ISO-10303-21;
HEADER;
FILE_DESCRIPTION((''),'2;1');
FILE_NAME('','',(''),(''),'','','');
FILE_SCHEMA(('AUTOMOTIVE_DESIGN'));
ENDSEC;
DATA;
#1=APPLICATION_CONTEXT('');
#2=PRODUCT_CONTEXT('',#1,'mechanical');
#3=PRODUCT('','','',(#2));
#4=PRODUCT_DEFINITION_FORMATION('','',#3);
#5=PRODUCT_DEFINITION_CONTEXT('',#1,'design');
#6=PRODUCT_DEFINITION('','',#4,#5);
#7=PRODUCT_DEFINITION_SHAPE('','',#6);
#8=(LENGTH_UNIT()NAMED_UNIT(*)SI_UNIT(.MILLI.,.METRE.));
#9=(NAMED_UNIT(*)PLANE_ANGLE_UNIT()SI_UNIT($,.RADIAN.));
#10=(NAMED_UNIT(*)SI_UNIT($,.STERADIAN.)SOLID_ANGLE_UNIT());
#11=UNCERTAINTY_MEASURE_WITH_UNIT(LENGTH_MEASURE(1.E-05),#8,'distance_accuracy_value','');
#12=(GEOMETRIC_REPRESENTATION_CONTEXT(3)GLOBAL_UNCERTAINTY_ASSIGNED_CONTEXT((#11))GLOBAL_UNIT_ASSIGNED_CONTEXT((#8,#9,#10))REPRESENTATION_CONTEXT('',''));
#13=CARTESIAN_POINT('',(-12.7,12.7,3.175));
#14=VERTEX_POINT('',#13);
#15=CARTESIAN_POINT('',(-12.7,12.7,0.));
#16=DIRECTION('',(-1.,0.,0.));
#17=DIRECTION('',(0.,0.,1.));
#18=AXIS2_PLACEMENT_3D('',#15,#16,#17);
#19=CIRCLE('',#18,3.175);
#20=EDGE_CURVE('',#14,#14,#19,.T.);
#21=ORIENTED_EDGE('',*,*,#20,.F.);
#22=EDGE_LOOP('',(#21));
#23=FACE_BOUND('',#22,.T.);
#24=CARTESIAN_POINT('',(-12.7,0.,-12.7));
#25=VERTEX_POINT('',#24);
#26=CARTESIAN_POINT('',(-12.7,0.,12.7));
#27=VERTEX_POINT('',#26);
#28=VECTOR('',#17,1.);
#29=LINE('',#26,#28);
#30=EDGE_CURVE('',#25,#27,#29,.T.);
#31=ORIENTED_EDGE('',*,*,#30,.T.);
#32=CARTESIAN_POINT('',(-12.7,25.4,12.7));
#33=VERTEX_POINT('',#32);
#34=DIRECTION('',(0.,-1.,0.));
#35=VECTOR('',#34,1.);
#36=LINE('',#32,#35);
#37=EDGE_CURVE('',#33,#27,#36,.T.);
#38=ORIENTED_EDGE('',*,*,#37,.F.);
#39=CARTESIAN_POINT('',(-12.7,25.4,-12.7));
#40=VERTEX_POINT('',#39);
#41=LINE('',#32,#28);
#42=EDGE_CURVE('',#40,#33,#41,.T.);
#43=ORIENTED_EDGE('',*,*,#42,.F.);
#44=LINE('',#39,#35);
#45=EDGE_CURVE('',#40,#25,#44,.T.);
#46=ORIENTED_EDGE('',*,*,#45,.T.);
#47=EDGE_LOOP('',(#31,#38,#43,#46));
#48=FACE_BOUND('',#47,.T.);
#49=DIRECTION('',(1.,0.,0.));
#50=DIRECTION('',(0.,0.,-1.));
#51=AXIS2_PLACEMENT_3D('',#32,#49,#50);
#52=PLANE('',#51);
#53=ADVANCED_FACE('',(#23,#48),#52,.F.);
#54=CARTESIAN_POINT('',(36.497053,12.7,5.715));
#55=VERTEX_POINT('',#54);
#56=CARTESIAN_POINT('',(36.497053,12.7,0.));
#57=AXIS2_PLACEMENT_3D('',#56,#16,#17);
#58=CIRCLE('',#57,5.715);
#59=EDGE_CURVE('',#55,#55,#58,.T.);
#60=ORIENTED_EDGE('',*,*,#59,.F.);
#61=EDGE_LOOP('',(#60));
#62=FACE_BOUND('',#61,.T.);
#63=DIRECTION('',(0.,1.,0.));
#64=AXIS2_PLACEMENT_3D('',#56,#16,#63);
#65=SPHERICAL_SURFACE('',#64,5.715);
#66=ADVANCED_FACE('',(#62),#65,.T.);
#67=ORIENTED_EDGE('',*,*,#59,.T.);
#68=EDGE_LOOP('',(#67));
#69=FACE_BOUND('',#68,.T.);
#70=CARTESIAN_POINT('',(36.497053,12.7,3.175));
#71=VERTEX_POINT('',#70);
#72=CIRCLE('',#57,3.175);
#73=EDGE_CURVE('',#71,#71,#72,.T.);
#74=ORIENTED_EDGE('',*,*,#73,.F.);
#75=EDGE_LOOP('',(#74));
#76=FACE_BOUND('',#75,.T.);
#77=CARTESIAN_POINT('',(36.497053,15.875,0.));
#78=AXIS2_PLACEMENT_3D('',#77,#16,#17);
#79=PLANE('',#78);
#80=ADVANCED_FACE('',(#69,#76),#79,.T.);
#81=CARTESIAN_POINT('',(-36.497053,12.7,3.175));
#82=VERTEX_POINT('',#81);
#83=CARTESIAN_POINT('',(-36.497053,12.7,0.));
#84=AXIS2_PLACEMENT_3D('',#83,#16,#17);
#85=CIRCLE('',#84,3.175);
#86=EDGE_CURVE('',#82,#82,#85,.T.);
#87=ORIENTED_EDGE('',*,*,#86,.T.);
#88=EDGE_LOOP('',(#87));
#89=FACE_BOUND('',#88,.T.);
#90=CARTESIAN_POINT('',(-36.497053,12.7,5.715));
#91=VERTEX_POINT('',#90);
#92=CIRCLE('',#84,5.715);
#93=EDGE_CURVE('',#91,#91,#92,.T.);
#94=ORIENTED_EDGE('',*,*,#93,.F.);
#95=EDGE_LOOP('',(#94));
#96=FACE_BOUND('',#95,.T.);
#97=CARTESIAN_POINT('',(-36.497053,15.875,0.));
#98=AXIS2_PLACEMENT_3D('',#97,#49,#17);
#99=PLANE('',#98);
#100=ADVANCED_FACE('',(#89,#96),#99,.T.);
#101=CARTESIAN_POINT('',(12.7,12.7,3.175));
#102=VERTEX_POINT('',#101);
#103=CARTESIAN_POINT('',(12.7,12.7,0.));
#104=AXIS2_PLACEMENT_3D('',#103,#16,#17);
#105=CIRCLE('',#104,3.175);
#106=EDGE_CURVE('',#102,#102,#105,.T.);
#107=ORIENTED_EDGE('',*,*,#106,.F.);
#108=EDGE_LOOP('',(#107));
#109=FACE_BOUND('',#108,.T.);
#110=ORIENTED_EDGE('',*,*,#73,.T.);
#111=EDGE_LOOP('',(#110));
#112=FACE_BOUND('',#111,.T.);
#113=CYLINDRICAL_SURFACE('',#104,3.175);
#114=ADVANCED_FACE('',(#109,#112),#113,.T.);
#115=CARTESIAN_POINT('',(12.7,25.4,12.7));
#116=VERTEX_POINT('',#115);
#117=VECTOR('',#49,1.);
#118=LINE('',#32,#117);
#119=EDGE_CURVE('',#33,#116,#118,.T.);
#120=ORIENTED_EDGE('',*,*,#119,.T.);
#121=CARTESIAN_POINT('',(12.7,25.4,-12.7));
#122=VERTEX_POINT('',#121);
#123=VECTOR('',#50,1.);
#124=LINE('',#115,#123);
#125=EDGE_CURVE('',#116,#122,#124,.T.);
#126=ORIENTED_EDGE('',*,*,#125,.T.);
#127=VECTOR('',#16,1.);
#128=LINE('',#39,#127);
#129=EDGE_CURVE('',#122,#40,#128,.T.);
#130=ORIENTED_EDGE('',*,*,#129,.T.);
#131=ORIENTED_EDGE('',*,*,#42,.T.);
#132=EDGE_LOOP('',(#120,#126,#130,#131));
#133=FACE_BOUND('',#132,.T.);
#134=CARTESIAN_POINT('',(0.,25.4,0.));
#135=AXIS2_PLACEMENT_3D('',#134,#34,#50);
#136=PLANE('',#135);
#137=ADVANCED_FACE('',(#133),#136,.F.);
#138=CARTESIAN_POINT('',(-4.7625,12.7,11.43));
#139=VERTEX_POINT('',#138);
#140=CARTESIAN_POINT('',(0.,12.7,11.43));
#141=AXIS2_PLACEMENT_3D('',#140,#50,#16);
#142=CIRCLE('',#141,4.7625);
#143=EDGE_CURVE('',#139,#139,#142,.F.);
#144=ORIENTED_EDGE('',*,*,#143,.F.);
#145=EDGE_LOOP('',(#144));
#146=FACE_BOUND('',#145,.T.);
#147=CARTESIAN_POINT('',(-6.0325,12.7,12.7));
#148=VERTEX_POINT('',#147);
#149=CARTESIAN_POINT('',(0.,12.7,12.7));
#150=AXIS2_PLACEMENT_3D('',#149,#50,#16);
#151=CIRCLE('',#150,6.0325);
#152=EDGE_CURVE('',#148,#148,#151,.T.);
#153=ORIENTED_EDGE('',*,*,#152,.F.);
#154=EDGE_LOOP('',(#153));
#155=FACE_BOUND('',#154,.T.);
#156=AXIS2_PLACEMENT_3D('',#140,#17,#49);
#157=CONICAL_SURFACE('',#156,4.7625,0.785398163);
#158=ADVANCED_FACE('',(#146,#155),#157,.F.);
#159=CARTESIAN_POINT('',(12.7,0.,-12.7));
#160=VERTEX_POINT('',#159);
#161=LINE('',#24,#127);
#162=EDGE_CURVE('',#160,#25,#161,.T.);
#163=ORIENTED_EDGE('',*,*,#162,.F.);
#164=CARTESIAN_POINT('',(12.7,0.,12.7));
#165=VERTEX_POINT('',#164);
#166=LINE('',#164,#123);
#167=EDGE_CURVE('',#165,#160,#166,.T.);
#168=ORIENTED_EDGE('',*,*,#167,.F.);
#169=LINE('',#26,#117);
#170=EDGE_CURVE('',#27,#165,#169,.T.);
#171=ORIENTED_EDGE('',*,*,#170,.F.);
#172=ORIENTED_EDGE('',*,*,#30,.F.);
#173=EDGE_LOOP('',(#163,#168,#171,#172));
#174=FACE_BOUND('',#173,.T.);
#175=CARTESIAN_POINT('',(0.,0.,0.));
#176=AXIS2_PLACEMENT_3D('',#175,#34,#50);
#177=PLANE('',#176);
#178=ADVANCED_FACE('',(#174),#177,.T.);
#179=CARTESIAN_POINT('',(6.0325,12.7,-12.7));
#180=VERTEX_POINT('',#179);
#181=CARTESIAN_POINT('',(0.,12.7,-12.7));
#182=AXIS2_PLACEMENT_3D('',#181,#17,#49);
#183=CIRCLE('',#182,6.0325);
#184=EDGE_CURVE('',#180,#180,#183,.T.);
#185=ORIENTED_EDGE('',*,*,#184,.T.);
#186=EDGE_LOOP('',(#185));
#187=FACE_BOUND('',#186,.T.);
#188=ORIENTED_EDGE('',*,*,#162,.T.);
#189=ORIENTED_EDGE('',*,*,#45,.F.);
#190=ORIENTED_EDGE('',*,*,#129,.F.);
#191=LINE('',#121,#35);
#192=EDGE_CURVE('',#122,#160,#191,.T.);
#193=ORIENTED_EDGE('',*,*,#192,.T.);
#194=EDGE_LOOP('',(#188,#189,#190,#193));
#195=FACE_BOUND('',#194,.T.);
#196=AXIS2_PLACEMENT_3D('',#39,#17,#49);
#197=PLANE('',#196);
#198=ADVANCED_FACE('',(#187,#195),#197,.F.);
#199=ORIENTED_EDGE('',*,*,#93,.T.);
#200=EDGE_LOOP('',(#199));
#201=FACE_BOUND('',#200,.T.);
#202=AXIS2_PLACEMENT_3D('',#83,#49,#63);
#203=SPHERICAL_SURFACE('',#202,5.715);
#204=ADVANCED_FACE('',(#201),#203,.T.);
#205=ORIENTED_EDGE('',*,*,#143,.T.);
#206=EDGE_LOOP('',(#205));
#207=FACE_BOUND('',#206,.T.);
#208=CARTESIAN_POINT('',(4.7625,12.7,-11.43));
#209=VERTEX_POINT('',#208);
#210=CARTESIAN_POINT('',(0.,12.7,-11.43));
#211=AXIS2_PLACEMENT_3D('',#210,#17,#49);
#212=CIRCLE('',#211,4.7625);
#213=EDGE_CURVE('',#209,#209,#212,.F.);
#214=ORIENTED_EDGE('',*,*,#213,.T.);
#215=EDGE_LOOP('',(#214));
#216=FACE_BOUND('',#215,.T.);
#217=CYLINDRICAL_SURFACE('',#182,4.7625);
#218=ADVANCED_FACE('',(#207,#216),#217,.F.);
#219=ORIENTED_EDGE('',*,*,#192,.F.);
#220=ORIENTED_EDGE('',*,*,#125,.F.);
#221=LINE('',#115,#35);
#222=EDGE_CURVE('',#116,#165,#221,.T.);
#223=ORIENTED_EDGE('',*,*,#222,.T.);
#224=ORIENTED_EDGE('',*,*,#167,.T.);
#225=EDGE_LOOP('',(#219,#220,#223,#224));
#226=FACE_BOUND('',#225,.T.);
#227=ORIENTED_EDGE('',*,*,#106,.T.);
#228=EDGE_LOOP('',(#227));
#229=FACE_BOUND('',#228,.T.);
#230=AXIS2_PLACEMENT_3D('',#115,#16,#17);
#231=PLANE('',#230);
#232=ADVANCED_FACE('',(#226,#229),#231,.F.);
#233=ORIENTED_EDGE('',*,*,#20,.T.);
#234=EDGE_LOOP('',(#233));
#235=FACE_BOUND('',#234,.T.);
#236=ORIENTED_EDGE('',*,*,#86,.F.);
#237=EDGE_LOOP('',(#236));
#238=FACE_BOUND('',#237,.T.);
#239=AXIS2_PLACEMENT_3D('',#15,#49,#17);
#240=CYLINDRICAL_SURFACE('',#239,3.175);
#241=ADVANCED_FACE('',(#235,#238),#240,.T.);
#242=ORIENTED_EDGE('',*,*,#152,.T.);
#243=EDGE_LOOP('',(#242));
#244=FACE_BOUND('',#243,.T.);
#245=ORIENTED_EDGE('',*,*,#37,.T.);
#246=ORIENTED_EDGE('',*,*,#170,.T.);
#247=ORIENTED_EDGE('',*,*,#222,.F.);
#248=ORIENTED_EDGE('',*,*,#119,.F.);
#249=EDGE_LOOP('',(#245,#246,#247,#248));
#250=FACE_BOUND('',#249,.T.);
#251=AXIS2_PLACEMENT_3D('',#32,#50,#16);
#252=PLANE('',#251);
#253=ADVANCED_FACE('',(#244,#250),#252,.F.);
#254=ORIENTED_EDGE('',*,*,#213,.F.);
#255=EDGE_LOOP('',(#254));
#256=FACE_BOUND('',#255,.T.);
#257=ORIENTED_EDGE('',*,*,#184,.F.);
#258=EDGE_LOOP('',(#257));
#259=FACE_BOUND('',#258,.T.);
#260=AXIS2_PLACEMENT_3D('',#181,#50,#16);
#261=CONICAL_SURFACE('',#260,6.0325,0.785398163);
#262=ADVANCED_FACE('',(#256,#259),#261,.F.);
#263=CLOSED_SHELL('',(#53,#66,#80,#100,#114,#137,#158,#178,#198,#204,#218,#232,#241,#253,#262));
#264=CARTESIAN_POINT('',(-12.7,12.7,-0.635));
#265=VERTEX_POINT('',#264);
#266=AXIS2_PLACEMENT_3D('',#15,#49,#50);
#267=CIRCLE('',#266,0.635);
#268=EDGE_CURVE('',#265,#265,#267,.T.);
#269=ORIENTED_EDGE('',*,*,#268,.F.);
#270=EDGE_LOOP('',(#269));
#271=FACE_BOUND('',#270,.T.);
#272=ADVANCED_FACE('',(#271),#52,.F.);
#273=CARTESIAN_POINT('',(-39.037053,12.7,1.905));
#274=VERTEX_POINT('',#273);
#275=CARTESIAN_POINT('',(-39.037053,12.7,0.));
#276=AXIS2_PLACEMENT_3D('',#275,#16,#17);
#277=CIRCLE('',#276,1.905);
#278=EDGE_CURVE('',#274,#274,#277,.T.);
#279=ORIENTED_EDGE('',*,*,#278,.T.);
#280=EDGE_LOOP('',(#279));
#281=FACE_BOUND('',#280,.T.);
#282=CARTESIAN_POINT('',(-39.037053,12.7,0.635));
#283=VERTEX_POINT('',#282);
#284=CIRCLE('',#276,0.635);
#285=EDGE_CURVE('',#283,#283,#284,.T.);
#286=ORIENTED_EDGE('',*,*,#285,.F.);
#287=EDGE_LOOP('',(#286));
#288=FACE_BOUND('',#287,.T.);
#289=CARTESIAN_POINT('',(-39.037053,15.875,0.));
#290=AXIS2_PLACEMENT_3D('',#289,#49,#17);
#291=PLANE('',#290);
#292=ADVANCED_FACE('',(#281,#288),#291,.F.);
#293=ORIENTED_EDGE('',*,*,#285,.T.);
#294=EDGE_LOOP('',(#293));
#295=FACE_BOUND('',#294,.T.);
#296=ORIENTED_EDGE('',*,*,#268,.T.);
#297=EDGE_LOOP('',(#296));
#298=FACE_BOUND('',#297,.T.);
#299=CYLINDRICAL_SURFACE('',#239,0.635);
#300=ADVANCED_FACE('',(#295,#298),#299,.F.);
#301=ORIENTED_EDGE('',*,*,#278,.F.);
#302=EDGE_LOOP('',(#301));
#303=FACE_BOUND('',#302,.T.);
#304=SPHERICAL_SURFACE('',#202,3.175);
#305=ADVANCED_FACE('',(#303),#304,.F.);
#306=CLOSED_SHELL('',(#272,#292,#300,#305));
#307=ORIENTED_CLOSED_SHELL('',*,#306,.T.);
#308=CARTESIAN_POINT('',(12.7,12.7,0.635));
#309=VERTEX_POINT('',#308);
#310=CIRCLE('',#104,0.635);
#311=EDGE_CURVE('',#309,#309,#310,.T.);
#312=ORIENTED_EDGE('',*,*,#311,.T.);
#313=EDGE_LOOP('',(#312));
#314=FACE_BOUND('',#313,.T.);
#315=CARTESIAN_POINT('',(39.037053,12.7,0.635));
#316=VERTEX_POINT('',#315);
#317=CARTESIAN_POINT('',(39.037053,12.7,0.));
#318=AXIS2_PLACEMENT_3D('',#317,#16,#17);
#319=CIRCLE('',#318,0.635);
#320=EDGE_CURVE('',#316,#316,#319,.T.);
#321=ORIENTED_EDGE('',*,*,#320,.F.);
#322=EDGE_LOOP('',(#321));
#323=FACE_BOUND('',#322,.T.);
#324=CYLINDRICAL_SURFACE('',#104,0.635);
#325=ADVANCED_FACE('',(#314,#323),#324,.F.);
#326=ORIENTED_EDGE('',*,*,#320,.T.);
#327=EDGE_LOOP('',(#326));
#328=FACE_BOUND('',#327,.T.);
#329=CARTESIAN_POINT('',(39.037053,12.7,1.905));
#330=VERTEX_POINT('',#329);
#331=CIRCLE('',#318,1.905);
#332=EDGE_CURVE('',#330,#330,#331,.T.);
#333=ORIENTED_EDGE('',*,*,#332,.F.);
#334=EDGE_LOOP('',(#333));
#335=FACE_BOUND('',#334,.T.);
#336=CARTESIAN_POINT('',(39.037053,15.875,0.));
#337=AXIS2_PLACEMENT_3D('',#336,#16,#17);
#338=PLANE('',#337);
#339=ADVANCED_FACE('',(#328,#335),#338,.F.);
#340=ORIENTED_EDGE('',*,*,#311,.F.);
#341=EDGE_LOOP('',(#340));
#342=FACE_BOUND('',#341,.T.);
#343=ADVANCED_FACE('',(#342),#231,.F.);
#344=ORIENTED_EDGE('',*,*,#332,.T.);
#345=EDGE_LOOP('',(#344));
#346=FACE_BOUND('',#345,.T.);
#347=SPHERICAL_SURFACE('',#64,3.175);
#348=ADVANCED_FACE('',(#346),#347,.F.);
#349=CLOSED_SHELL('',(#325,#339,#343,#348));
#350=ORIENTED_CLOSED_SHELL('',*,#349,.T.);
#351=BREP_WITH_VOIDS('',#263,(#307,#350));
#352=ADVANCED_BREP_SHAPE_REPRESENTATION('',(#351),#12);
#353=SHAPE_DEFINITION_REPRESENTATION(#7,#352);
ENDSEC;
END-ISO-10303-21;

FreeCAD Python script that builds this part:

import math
import FreeCAD as App
import Part
import Sketcher
from FreeCAD import Vector
Q = App.Units.Quantity


def edges_at(feature, points):
    """Names of the edges that pass closest to the given points."""
    edges = feature.Shape.Edges
    near = lambda p: min(range(len(edges)), key=lambda i: edges[i].distToShape(Part.Vertex(*p))[0])
    return sorted({f"Edge{near(p) + 1}" for p in points})

doc = App.newDocument("Part")
body = doc.addObject("PartDesign::Body", "Body")

# Sketch on XZ plane
sketch1 = doc.addObject("Sketcher::SketchObject", "Sketch")
body.addObject(sketch1)
sketch1.AttachmentSupport = (doc.XZ_Plane, [""])
sketch1.MapMode = "FlatFace"
sketch1.addGeometry(Part.LineSegment(Vector(-12.7, -12.7, 0), Vector(-12.7, 12.7, 0)), False)
sketch1.addGeometry(Part.LineSegment(Vector(-12.7, 12.7, 0), Vector(12.7, 12.7, 0)), False)
sketch1.addGeometry(Part.LineSegment(Vector(12.7, 12.7, 0), Vector(12.7, -12.7, 0)), False)
sketch1.addGeometry(Part.LineSegment(Vector(12.7, -12.7, 0), Vector(-12.7, -12.7, 0)), False)
sketch1.addConstraint(Sketcher.Constraint("Coincident", 0, 2, 1, 1))
sketch1.addConstraint(Sketcher.Constraint("Coincident", 1, 2, 2, 1))
sketch1.addConstraint(Sketcher.Constraint("Coincident", 2, 2, 3, 1))
sketch1.addConstraint(Sketcher.Constraint("Coincident", 3, 2, 0, 1))
sketch1.addConstraint(Sketcher.Constraint("Vertical", 0))
sketch1.addConstraint(Sketcher.Constraint("Horizontal", 1))
sketch1.addConstraint(Sketcher.Constraint("Vertical", 2))
sketch1.addConstraint(Sketcher.Constraint("Horizontal", 3))
sketch1.addConstraint(Sketcher.Constraint("Symmetric", 0, 2, 2, 2, -1, 1))
sketch1.addConstraint(Sketcher.Constraint("Equal", 3, 0))
sketch1.addConstraint(Sketcher.Constraint("DistanceX", 1, 1, 1, 2, Q("1 in")))
pad1 = doc.addObject("PartDesign::Pad", "Pad")
body.addObject(pad1)
pad1.Profile = sketch1
pad1.Length = Q("1 in")
pad1.Reversed = True

# Sketch on XY plane
sketch2 = doc.addObject("Sketcher::SketchObject", "Sketch001")
body.addObject(sketch2)
sketch2.AttachmentSupport = (doc.XY_Plane, [""])
sketch2.MapMode = "FlatFace"
sketch2.AttachmentOffset = App.Placement(Vector(0, 0, 0.5 * 25.4), App.Rotation())
sketch2.addGeometry(Part.Circle(Vector(0, 12.7, 0), Vector(0, 0, 1), 4.7625), False)
sketch2.addConstraint(Sketcher.Constraint("PointOnObject", 0, 3, -2))
sketch2.addConstraint(Sketcher.Constraint("Diameter", 0, Q("0.375 in")))
sketch2.addConstraint(Sketcher.Constraint("DistanceY", -1, 1, 0, 3, Q("0.5 in")))
pocket1 = doc.addObject("PartDesign::Pocket", "Pocket")
body.addObject(pocket1)
pocket1.Profile = sketch2
pocket1.Length = Q("1 in")
doc.recompute()

chamfer = doc.addObject("PartDesign::Chamfer", "Chamfer")
body.addObject(chamfer)
chamfer.Base = (pocket1, edges_at(pocket1, [(-4.763, 12.7, 12.7)]))
chamfer.Size = Q("0.05 in")
doc.recompute()

chamfer2 = doc.addObject("PartDesign::Chamfer", "Chamfer001")
body.addObject(chamfer2)
chamfer2.Base = (chamfer, edges_at(chamfer, [(-4.763, 12.7, -12.7)]))
chamfer2.Size = Q("0.05 in")

# Sketch on XY plane
sketch3 = doc.addObject("Sketcher::SketchObject", "Sketch002")
body.addObject(sketch3)
sketch3.AttachmentSupport = (doc.XY_Plane, [""])
sketch3.MapMode = "FlatFace"
sketch3.addGeometry(Part.LineSegment(Vector(36.497053, 15.875, 0), Vector(12.7, 15.875, 0)), False)
sketch3.addGeometry(Part.LineSegment(Vector(12.7, 15.875, 0), Vector(12.7, 13.335, 0)), False)
sketch3.addGeometry(Part.LineSegment(Vector(12.7, 13.335, 0), Vector(39.037053, 13.335, 0)), False)
sketch3.addGeometry(Part.LineSegment(Vector(39.037053, 13.335, 0), Vector(39.037053, 14.605, 0)), False)
sketch3.addGeometry(Part.ArcOfCircle(Part.Circle(Vector(36.497053, 12.7, 0), Vector(0, 0, 1), 3.175), math.radians(0), math.radians(36.869898)), False)
sketch3.addGeometry(Part.LineSegment(Vector(39.672053, 12.7, 0), Vector(42.212053, 12.7, 0)), False)
sketch3.addGeometry(Part.ArcOfCircle(Part.Circle(Vector(36.497053, 12.7, 0), Vector(0, 0, 1), 5.715), math.radians(0), math.radians(90)), False)
sketch3.addGeometry(Part.LineSegment(Vector(36.497053, 18.415, 0), Vector(36.497053, 15.875, 0)), False)
sketch3.addGeometry(Part.LineSegment(Vector(12.7, 12.7, 0), Vector(42.212053, 12.7, 0)), True)  # axis
sketch3.addConstraint(Sketcher.Constraint("Coincident", 0, 2, 1, 1))
sketch3.addConstraint(Sketcher.Constraint("Coincident", 1, 2, 2, 1))
sketch3.addConstraint(Sketcher.Constraint("Coincident", 2, 2, 3, 1))
sketch3.addConstraint(Sketcher.Constraint("Coincident", 3, 2, 4, 2))
sketch3.addConstraint(Sketcher.Constraint("Coincident", 4, 1, 5, 1))
sketch3.addConstraint(Sketcher.Constraint("Coincident", 5, 2, 6, 1))
sketch3.addConstraint(Sketcher.Constraint("Coincident", 6, 2, 7, 1))
sketch3.addConstraint(Sketcher.Constraint("Coincident", 7, 2, 0, 1))
sketch3.addConstraint(Sketcher.Constraint("Horizontal", 0))
sketch3.addConstraint(Sketcher.Constraint("Vertical", 1))
sketch3.addConstraint(Sketcher.Constraint("Horizontal", 2))
sketch3.addConstraint(Sketcher.Constraint("Vertical", 3))
sketch3.addConstraint(Sketcher.Constraint("Horizontal", 5))
sketch3.addConstraint(Sketcher.Constraint("Vertical", 7))
sketch3.addConstraint(Sketcher.Constraint("Horizontal", 8))
sketch3.addConstraint(Sketcher.Constraint("Coincident", 6, 3, 4, 3))
sketch3.addConstraint(Sketcher.Constraint("Coincident", 8, 2, 5, 2))
sketch3.addConstraint(Sketcher.Constraint("Horizontal", 6, 3, 4, 1))
sketch3.addConstraint(Sketcher.Constraint("Vertical", 4, 3, 6, 2))
sketch3.addConstraint(Sketcher.Constraint("Vertical", 1, 2, 8, 1))
sketch3.addConstraint(Sketcher.Constraint("Equal", 5, 1))
sketch3.addConstraint(Sketcher.Constraint("Equal", 1, 7))
sketch3.addConstraint(Sketcher.Constraint("DistanceX", 5, 1, 5, 2, Q("0.1 in")))
sketch3.addConstraint(Sketcher.Constraint("Radius", 4, Q("0.125 in")))
sketch3.addConstraint(Sketcher.Constraint("DistanceY", 3, 1, 3, 2, Q("0.05 in")))
sketch3.addConstraint(Sketcher.Constraint("DistanceY", -1, 1, 4, 3, Q("0.5 in")))
sketch3.addConstraint(Sketcher.Constraint("DistanceX", -1, 1, 0, 2, Q("0.5 in")))
sketch3.addConstraint(Sketcher.Constraint("DistanceX", 0, 2, 0, 1, 23.797053))
revolution = doc.addObject("PartDesign::Revolution", "Revolution")
body.addObject(revolution)
revolution.Profile = sketch3
revolution.ReferenceAxis = (sketch3, ["Axis0"])
revolution.Angle = 360
doc.recompute()

mirrored = doc.addObject("PartDesign::Mirrored", "Mirrored")
body.addObject(mirrored)
mirrored.Originals = [revolution]
mirrored.MirrorPlane = (doc.YZ_Plane, [""])
body.Tip = mirrored

doc.recompute()
